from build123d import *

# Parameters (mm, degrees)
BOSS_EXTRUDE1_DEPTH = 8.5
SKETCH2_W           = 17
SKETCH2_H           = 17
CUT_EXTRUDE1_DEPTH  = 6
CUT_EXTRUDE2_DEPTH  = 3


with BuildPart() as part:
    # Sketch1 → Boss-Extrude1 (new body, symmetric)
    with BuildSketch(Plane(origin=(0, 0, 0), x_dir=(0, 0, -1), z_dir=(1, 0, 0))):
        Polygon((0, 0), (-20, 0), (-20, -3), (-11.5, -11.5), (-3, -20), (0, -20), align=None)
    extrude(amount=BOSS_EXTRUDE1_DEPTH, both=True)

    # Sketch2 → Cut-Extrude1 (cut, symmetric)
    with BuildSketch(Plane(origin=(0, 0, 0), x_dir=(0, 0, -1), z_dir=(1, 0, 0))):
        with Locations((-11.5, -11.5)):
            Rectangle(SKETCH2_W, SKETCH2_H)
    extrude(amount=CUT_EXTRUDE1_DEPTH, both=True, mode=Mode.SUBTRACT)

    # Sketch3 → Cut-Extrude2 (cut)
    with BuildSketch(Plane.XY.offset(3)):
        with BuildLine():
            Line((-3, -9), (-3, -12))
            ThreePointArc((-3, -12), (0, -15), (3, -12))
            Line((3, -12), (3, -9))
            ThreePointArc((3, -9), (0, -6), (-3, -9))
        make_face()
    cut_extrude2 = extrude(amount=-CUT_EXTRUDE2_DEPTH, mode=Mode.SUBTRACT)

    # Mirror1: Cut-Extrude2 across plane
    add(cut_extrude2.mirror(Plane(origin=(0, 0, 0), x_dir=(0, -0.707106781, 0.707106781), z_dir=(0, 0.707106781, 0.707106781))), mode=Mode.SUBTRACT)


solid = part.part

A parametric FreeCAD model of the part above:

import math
import FreeCAD as App
import Part
import Sketcher

V = App.Vector


def add_polygon(sketch, points):
    """Adds a closed chain of lines whose ends are joined by coincident constraints."""
    first, n = sketch.GeometryCount, len(points)
    for a, b in zip(points, points[1:] + points[:1]):
        sketch.addGeometry(Part.LineSegment(App.Vector(*a, 0), App.Vector(*b, 0)), False)
    for i in range(n):
        sketch.addConstraint(Sketcher.Constraint("Coincident", first + i, 2, first + (i + 1) % n, 1))

doc = App.newDocument("Part")
body = doc.addObject("PartDesign::Body", "Body")

# Sketch on YZ plane
sketch1 = body.newObject("Sketcher::SketchObject", "Sketch")
sketch1.AttachmentSupport = (doc.getObject("YZ_Plane"), [""])
sketch1.MapMode = "FlatFace"
add_polygon(sketch1, [(0, 0), (0, 20), (-3, 20), (-20, 3), (-20, 0)])  # lines 0-4
sketch1.addConstraint([
    Sketcher.Constraint("Vertical", 0),
    Sketcher.Constraint("Horizontal", 1),
    Sketcher.Constraint("Vertical", 3),
    Sketcher.Constraint("Horizontal", 4),
    Sketcher.Constraint("Coincident", 4, 2, -1, 1),
    Sketcher.Constraint("Equal", 4, 0),
    Sketcher.Constraint("Equal", 1, 3),
    Sketcher.Constraint("DistanceX", 1, 2, 1, 1, 3.0),
    Sketcher.Constraint("DistanceX", 4, 1, 4, 2, 20.0),
])
pad1 = body.newObject("PartDesign::Pad", "Pad")
pad1.Profile = sketch1
pad1.Length = 17
pad1.Midplane = True

# Sketch on YZ plane
sketch2 = body.newObject("Sketcher::SketchObject", "Sketch001")
sketch2.AttachmentSupport = (doc.getObject("YZ_Plane"), [""])
sketch2.MapMode = "FlatFace"
add_polygon(sketch2, [(-3, 20), (-20, 20), (-20, 3), (-3, 3)])  # lines 0-3
sketch2.addConstraint([
    Sketcher.Constraint("Horizontal", 0),
    Sketcher.Constraint("Vertical", 1),
    Sketcher.Constraint("Horizontal", 2),
    Sketcher.Constraint("Vertical", 3),
    Sketcher.Constraint("Equal", 2, 1),
    Sketcher.Constraint("DistanceX", 0, 2, 0, 1, 17.0),
    Sketcher.Constraint("DistanceX", 0, 2, -1, 1, 20.0),
    Sketcher.Constraint("DistanceY", -1, 1, 0, 2, 20.0),
])
pocket1 = body.newObject("PartDesign::Pocket", "Pocket")
pocket1.Profile = sketch2
pocket1.Length = 12
pocket1.Midplane = True

# Sketch on XY plane
sketch3 = body.newObject("Sketcher::SketchObject", "Sketch002")
sketch3.AttachmentSupport = (doc.getObject("XY_Plane"), [""])
sketch3.MapMode = "FlatFace"
sketch3.AttachmentOffset = App.Placement(V(0, 0, 3), App.Rotation())
sketch3.addGeometry([
    Part.LineSegment(V(-3, -9, 0), V(-3, -12, 0)),
    Part.ArcOfCircle(Part.Circle(V(0, -12, 0), V(0, 0, 1), 3), math.radians(180), math.radians(360)),
    Part.LineSegment(V(3, -12, 0), V(3, -9, 0)),
    Part.ArcOfCircle(Part.Circle(V(0, -9, 0), V(0, 0, 1), 3), math.radians(0), math.radians(180)),
], False)
sketch3.addConstraint([
    Sketcher.Constraint("Tangent", 0, 2, 1, 1),
    Sketcher.Constraint("Tangent", 1, 2, 2, 1),
    Sketcher.Constraint("Tangent", 2, 2, 3, 1),
    Sketcher.Constraint("Tangent", 3, 2, 0, 1),
    Sketcher.Constraint("Vertical", 0),
    Sketcher.Constraint("Vertical", 2),
    Sketcher.Constraint("PointOnObject", 1, 3, -2),
    Sketcher.Constraint("Radius", 1, 3.0),
    Sketcher.Constraint("DistanceY", 0, 2, 0, 1, 3.0),
    Sketcher.Constraint("DistanceY", 1, 3, -1, 1, 12.0),
])
pocket2 = body.newObject("PartDesign::Pocket", "Pocket001")
pocket2.Profile = sketch3
pocket2.Length = 3
doc.recompute()

datumplane = body.newObject("PartDesign::Plane", "DatumPlane")
datumplane.Placement = App.Placement(V(0, 0, 0), App.Rotation(V(0, 0.707106781, -0.707106781), V(-1, 0, 0), V(0, 0.707106781, 0.707106781), "ZXY"))
mirrored = body.newObject("PartDesign::Mirrored", "Mirrored")
mirrored.Originals = [pocket2]
mirrored.MirrorPlane = (datumplane, [""])
body.Tip = mirrored

doc.recompute()
